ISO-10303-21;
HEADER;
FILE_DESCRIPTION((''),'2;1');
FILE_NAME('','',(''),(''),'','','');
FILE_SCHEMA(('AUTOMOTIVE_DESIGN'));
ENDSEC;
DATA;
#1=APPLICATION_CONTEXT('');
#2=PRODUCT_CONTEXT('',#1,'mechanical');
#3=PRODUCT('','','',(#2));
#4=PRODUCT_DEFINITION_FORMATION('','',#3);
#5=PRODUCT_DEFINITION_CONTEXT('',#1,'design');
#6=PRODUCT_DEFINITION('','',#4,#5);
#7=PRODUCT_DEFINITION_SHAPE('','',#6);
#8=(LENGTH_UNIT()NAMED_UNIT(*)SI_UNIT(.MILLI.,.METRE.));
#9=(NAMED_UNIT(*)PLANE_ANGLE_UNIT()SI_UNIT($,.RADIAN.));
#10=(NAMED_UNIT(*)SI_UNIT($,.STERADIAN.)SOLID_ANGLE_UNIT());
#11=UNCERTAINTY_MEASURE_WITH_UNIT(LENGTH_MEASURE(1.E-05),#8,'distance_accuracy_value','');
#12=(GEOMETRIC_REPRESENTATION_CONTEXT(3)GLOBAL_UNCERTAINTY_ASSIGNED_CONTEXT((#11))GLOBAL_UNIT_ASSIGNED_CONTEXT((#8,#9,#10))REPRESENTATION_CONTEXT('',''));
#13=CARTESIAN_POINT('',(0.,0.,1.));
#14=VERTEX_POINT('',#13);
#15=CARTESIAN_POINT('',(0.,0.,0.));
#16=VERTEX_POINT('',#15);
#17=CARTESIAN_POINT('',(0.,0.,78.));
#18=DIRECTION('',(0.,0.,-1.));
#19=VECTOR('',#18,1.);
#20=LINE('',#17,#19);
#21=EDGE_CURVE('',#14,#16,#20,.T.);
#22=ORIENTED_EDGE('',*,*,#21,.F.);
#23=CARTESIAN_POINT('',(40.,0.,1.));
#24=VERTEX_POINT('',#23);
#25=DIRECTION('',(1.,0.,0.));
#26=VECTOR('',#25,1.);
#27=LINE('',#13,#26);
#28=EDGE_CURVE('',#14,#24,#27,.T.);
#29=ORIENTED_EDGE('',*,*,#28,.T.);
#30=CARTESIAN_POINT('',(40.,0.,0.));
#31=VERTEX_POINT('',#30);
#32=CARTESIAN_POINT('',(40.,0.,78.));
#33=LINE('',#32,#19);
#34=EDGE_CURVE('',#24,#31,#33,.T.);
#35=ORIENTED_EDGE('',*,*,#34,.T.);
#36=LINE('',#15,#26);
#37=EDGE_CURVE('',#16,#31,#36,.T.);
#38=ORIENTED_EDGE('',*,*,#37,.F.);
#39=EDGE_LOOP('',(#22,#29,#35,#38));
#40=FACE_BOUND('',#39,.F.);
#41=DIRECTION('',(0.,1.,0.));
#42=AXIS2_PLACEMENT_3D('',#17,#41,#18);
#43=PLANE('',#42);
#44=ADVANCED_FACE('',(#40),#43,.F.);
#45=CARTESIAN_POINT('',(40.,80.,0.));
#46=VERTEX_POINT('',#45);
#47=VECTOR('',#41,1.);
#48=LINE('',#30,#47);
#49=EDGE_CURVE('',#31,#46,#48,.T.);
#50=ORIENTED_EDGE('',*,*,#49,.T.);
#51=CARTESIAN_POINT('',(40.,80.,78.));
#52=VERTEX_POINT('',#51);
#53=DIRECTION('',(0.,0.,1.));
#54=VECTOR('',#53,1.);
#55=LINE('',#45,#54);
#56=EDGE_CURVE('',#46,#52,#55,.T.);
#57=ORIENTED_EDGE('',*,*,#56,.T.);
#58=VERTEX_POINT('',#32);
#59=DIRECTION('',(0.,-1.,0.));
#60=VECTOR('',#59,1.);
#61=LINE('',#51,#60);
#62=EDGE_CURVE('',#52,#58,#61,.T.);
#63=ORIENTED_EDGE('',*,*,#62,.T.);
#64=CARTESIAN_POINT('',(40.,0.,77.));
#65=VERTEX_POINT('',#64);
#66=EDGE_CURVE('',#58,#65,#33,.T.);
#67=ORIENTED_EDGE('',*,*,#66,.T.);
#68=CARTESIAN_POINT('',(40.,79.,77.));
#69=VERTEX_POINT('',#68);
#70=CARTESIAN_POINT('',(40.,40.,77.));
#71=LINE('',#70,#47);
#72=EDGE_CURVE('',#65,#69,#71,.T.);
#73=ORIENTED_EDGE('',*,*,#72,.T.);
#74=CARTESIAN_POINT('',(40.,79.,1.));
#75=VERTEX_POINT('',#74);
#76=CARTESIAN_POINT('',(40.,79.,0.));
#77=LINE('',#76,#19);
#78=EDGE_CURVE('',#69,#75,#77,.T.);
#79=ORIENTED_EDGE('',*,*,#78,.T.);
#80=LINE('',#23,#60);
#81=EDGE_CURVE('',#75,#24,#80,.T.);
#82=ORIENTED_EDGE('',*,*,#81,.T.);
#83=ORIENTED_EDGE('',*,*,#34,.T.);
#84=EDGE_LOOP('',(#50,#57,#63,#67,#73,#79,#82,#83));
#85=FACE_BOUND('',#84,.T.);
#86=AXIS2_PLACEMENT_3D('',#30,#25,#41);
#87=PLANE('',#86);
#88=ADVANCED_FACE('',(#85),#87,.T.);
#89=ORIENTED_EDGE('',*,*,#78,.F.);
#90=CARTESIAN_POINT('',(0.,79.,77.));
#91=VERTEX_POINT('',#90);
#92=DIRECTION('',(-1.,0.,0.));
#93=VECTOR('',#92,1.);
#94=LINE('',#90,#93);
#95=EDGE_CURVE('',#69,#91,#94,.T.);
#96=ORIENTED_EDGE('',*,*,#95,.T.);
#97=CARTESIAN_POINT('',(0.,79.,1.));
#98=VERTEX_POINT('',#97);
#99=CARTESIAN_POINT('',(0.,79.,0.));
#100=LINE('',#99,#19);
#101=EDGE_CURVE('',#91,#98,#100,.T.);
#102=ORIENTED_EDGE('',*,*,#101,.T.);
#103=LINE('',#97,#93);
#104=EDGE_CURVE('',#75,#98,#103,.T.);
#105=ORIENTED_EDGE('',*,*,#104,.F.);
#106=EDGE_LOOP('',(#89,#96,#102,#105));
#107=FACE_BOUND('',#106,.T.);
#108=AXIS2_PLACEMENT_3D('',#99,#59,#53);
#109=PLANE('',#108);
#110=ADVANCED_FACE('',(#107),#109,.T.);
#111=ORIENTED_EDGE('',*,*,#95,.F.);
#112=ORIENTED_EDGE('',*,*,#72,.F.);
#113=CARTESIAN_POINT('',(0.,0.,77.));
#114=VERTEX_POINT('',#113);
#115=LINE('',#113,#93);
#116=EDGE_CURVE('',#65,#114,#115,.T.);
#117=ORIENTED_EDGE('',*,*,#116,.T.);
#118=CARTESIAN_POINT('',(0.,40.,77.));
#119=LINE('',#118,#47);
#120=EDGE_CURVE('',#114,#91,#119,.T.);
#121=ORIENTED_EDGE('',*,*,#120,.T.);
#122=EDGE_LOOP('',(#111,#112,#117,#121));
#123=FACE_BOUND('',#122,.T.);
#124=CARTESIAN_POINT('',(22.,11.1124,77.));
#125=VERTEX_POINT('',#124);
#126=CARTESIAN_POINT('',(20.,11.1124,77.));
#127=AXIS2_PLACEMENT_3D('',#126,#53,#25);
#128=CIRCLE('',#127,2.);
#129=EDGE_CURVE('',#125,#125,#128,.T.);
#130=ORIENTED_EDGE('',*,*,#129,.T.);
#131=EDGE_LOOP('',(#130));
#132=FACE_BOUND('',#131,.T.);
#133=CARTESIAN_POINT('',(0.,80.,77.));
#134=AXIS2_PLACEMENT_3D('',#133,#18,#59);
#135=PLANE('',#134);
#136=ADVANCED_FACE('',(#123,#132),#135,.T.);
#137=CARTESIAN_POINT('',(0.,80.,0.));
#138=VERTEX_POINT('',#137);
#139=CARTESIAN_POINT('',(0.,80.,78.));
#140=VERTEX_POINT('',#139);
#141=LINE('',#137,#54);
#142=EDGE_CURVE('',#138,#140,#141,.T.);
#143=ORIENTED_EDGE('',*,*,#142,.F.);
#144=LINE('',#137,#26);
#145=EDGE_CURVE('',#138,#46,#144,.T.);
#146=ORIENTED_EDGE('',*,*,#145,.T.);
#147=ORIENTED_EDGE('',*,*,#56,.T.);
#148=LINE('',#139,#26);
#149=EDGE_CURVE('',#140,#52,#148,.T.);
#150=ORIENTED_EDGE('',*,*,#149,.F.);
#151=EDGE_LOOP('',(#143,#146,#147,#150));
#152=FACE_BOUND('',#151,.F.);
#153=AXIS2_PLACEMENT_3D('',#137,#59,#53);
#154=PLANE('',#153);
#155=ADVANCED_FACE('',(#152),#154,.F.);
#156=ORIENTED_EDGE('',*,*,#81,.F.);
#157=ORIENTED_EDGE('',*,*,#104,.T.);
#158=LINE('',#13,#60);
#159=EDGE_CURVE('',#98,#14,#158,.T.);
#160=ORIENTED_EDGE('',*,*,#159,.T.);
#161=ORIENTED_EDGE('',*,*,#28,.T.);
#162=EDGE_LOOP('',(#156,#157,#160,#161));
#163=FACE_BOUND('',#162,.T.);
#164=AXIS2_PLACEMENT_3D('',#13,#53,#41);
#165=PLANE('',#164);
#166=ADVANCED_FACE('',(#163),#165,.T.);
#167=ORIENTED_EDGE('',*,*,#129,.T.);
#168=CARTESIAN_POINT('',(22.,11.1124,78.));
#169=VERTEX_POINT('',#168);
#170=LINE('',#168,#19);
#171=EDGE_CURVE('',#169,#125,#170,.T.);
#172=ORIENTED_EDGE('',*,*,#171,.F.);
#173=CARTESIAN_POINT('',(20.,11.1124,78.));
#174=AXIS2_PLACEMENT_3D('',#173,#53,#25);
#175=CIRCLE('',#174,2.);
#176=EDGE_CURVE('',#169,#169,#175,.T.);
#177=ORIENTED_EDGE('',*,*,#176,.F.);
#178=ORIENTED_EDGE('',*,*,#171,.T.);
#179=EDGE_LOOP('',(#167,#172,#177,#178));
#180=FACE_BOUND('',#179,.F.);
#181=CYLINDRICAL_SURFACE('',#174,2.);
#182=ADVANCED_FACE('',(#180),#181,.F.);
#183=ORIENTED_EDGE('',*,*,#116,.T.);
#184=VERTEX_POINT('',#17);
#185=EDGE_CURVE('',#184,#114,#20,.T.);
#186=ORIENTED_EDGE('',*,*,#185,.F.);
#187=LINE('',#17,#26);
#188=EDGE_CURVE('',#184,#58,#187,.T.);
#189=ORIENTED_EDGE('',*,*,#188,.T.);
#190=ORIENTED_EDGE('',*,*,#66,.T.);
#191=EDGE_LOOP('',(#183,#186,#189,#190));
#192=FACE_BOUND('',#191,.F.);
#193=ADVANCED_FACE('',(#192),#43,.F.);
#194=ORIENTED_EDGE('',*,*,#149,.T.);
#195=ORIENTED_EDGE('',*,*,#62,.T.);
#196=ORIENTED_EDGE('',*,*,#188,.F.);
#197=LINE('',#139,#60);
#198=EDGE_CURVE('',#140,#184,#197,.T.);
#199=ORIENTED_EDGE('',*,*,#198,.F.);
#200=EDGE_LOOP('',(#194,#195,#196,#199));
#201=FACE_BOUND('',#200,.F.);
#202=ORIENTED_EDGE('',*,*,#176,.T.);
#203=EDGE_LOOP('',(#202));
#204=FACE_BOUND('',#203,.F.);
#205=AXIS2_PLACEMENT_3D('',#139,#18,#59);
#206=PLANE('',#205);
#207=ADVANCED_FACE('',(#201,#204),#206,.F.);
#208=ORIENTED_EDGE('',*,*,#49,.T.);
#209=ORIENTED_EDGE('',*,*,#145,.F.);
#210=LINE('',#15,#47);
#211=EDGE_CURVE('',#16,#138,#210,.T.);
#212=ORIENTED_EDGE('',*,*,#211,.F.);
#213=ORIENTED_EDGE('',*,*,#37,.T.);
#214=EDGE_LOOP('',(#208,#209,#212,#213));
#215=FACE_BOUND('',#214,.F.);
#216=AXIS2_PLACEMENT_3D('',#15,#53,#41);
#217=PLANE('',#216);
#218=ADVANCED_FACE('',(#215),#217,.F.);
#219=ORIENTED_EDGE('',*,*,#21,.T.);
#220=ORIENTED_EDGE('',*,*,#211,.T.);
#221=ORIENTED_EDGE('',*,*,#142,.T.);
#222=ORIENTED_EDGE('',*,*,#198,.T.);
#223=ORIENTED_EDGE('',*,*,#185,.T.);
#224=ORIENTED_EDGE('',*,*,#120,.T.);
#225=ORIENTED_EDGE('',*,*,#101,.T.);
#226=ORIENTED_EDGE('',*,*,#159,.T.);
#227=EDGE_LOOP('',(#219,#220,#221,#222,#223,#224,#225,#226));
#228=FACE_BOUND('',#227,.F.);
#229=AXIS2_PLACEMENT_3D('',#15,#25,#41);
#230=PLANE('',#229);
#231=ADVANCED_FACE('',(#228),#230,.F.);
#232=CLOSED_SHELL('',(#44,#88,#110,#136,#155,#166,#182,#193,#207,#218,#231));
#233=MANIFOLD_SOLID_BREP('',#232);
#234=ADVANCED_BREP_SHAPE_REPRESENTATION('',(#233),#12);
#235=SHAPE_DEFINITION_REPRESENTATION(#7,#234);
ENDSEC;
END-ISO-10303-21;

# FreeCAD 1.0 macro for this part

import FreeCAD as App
import Part
import Sketcher

V = App.Vector


def faces_at(feature, points):
    """Names of the faces that lie closest to the given points."""
    faces = feature.Shape.Faces
    near = lambda p: min(range(len(faces)), key=lambda i: faces[i].distToShape(Part.Vertex(*p))[0])
    return sorted({f"Face{near(p) + 1}" for p in points})


def add_polygon(sketch, points):
    """Adds a closed chain of lines whose ends are joined by coincident constraints."""
    first, n = sketch.GeometryCount, len(points)
    for a, b in zip(points, points[1:] + points[:1]):
        sketch.addGeometry(Part.LineSegment(App.Vector(*a, 0), App.Vector(*b, 0)), False)
    for i in range(n):
        sketch.addConstraint(Sketcher.Constraint("Coincident", first + i, 2, first + (i + 1) % n, 1))

doc = App.newDocument("Part")
body = doc.addObject("PartDesign::Body", "Body")

# Sketch on YZ plane
sketch1 = body.newObject("Sketcher::SketchObject", "Sketch")
sketch1.AttachmentSupport = (doc.getObject("YZ_Plane"), [""])
sketch1.MapMode = "FlatFace"
add_polygon(sketch1, [(0, 78), (0, 0), (80, 0), (80, 78)])  # lines 0-3
sketch1.addConstraint(Sketcher.Constraint("Vertical", 0))
sketch1.addConstraint(Sketcher.Constraint("Horizontal", 1))
sketch1.addConstraint(Sketcher.Constraint("Vertical", 2))
sketch1.addConstraint(Sketcher.Constraint("Horizontal", 3))
sketch1.addConstraint(Sketcher.Constraint("Coincident", 0, 2, -1, 1))
sketch1.addConstraint(Sketcher.Constraint("DistanceX", 1, 1, 1, 2, 80.0))
sketch1.addConstraint(Sketcher.Constraint("DistanceY", 0, 2, 0, 1, 78.0))
pad1 = body.newObject("PartDesign::Pad", "Pad")
pad1.Profile = sketch1
pad1.Length = 40
doc.recompute()

thickness = body.newObject("PartDesign::Thickness", "Thickness")
thickness.Base = (pad1, faces_at(pad1, [(13.333, 0, 52), (0, 26.667, 52), (40, 26.667, 52)]))
thickness.Value = 1
thickness.Reversed = True
thickness.Join = "Intersection"

# Sketch on XY plane
sketch2 = body.newObject("Sketcher::SketchObject", "Sketch001")
sketch2.AttachmentSupport = (doc.getObject("XY_Plane"), [""])
sketch2.MapMode = "FlatFace"
sketch2.AttachmentOffset = App.Placement(V(0, 0, 78), App.Rotation())
sketch2.addGeometry(Part.Circle(V(20, 11.1, 0), V(0, 0, 1), 2), False)
sketch2.addConstraint(Sketcher.Constraint("Diameter", 0, 4.0))
sketch2.addConstraint(Sketcher.Constraint("DistanceX", -1, 1, 0, 3, 20.0))
sketch2.addConstraint(Sketcher.Constraint("DistanceY", -1, 1, 0, 3, 11.1124))
pocket1 = body.newObject("PartDesign::Pocket", "Pocket")
pocket1.Profile = sketch2
pocket1.Length = 1

doc.recompute()
